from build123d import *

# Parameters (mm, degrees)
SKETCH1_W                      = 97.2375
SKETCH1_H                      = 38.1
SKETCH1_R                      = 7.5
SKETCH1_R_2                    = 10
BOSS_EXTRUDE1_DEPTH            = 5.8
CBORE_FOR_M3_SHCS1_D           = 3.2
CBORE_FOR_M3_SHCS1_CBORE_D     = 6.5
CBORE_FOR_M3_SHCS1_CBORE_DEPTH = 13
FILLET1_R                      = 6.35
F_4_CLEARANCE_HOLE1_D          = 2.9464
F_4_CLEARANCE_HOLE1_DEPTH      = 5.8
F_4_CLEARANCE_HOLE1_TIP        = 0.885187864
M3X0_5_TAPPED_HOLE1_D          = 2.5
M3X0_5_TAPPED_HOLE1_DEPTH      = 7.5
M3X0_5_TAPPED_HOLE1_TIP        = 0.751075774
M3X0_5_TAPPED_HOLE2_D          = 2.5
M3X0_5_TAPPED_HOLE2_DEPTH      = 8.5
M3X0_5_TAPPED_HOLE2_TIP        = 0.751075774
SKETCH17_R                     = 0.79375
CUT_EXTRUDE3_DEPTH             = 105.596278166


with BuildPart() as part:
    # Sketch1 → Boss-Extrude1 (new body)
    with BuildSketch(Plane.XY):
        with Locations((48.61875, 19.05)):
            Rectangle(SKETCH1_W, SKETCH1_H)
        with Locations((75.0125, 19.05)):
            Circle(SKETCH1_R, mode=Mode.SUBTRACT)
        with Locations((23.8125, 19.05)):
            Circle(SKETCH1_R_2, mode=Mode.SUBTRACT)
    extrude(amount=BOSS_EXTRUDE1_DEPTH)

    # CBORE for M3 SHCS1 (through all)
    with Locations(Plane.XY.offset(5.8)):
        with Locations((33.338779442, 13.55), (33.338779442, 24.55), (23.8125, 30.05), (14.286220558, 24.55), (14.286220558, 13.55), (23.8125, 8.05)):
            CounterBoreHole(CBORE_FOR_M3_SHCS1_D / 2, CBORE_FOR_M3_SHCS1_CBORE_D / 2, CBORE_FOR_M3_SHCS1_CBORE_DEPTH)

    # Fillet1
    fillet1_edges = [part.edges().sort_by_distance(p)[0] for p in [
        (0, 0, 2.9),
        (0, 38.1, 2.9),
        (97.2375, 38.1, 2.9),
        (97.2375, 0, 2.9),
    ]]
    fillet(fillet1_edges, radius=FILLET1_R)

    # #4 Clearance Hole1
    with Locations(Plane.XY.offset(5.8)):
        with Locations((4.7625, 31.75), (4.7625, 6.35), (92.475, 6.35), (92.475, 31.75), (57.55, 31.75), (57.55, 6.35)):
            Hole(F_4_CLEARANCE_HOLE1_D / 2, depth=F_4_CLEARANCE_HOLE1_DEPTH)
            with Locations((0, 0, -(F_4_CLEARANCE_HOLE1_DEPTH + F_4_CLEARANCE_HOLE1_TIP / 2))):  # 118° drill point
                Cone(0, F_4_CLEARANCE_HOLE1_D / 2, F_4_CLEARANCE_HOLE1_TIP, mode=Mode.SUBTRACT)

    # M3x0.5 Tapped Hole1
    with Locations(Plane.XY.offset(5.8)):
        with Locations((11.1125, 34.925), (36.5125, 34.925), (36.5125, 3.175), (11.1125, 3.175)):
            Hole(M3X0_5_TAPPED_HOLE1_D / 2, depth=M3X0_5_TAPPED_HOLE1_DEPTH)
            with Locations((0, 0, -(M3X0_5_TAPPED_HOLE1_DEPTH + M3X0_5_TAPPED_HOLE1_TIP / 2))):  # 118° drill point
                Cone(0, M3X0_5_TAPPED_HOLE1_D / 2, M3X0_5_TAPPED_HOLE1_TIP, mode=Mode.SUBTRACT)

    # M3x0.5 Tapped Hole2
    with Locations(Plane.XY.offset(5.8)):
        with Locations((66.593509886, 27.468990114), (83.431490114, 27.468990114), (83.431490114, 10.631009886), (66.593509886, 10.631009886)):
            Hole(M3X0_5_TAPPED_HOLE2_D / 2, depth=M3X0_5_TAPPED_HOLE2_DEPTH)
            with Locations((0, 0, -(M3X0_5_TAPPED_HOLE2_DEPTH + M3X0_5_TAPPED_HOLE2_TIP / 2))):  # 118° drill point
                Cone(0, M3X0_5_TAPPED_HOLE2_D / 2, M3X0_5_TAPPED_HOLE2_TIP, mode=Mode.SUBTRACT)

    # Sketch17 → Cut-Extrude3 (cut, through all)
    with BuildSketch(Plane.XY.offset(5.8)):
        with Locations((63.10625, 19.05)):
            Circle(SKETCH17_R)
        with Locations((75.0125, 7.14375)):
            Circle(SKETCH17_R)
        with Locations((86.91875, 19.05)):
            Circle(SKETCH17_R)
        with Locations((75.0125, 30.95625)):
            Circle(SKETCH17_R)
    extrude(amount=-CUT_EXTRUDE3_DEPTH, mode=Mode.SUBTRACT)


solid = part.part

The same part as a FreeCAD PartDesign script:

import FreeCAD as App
import Part
import Sketcher
from FreeCAD import Vector
Q = App.Units.Quantity


def edges_at(feature, points):
    """Names of the edges that pass closest to the given points."""
    edges = feature.Shape.Edges
    near = lambda p: min(range(len(edges)), key=lambda i: edges[i].distToShape(Part.Vertex(*p))[0])
    return sorted({f"Edge{near(p) + 1}" for p in points})

doc = App.newDocument("Part")
body = doc.addObject("PartDesign::Body", "Body")

sketch1 = body.newObject("Sketcher::SketchObject", "Sketch")
sketch1.AttachmentSupport = (doc.getObject("XY_Plane"), [""])
sketch1.MapMode = "FlatFace"
sketch1.addGeometry([
    Part.LineSegment(Vector(0, 38, 0), Vector(0, 0, 0)),
    Part.LineSegment(Vector(0, 0, 0), Vector(97, 0, 0)),
    Part.LineSegment(Vector(97, 0, 0), Vector(97, 38, 0)),
    Part.LineSegment(Vector(97, 38, 0), Vector(0, 38, 0)),
    Part.Circle(Vector(24, 19, 0), Vector(0, 0, 1), 10),
    Part.Circle(Vector(75, 19, 0), Vector(0, 0, 1), 8),
], False)
sketch1.addConstraint([
    Sketcher.Constraint("Coincident", 0, 2, 1, 1),
    Sketcher.Constraint("Coincident", 1, 2, 2, 1),
    Sketcher.Constraint("Coincident", 2, 2, 3, 1),
    Sketcher.Constraint("Coincident", 3, 2, 0, 1),
    Sketcher.Constraint("Vertical", 0),
    Sketcher.Constraint("Horizontal", 1),
    Sketcher.Constraint("Vertical", 2),
    Sketcher.Constraint("Horizontal", 3),
    Sketcher.Constraint("Coincident", 0, 2, -1, 1),
    Sketcher.Constraint("Horizontal", 4, 3, 5, 3),
    Sketcher.Constraint("Diameter", 4, Q("20 mm")),
    Sketcher.Constraint("Diameter", 5, Q("15 mm")),
    Sketcher.Constraint("DistanceY", 0, 2, 0, 1, Q("38.1 mm")),
    Sketcher.Constraint("DistanceX", 4, 3, 5, 3, Q("51.2 mm")),
    Sketcher.Constraint("DistanceY", -1, 1, 4, 3, Q("19.05 mm")),
    Sketcher.Constraint("DistanceX", 1, 1, 1, 2, Q("97.2375 mm")),
    Sketcher.Constraint("DistanceX", 5, 3, 1, 2, Q("22.225 mm")),
])
pad1 = body.newObject("PartDesign::Pad", "Pad")
pad1.Profile = sketch1
pad1.Length = 5.8

sketch2 = body.newObject("Sketcher::SketchObject", "Sketch001")
sketch2.AttachmentSupport = (doc.getObject("XY_Plane"), [""])
sketch2.MapMode = "FlatFace"
sketch2.AttachmentOffset = App.Placement(Vector(0, 0, 5.8), App.Rotation())
sketch2.addGeometry([
    Part.Circle(Vector(33.3, 13.6, 0), Vector(0, 0, 1), 1.6),
    Part.Circle(Vector(33.3, 24.6, 0), Vector(0, 0, 1), 1.6),
    Part.Circle(Vector(23.8, 30.1, 0), Vector(0, 0, 1), 1.6),
    Part.Circle(Vector(14.3, 24.6, 0), Vector(0, 0, 1), 1.6),
    Part.Circle(Vector(14.3, 13.6, 0), Vector(0, 0, 1), 1.6),
    Part.Circle(Vector(23.8, 8.1, 0), Vector(0, 0, 1), 1.6),
], False)
sketch2.addConstraint([
    Sketcher.Constraint("Equal", 0, 1),
    Sketcher.Constraint("Equal", 1, 2),
    Sketcher.Constraint("Equal", 2, 3),
    Sketcher.Constraint("Equal", 3, 4),
    Sketcher.Constraint("Equal", 4, 5),
    Sketcher.Constraint("Horizontal", 1, 3, 3, 3),
    Sketcher.Constraint("Horizontal", 0, 3, 4, 3),
    Sketcher.Constraint("Vertical", 0, 3, 1, 3),
    Sketcher.Constraint("Vertical", 3, 3, 4, 3),
    Sketcher.Constraint("Vertical", 2, 3, 5, 3),
    Sketcher.Constraint("Diameter", 0, Q("3.2 mm")),
    Sketcher.Constraint("DistanceY", 0, 3, 1, 3, Q("11 mm")),
    Sketcher.Constraint("DistanceY", 5, 3, 2, 3, Q("22 mm")),
    Sketcher.Constraint("DistanceY", 1, 3, 2, 3, Q("5.5 mm")),
    Sketcher.Constraint("DistanceY", -1, 1, 0, 3, Q("13.55 mm")),
    Sketcher.Constraint("DistanceX", -1, 1, 2, 3, Q("23.8125 mm")),
    Sketcher.Constraint("DistanceX", -1, 1, 0, 3, Q("33.338779 mm")),
    Sketcher.Constraint("DistanceX", -1, 1, 3, 3, Q("14.286221 mm")),
])
doc.recompute()
hole = body.newObject("PartDesign::Hole", "Hole")
hole.Profile = sketch2
hole.ThreadType = "None"
hole.Diameter = 3.2
hole.DepthType = "ThroughAll"
hole.HoleCutType = "Counterbore"
hole.HoleCutDiameter = 6.5
hole.HoleCutDepth = 13
doc.recompute()

fillet = body.newObject("PartDesign::Fillet", "Fillet")
fillet.Base = (hole, edges_at(hole, [
    (0, 0, 2.9),
    (0, 38.1, 2.9),
    (97.237, 38.1, 2.9),
    (97.237, 0, 2.9),
]))
fillet.Radius = 6.35

sketch3 = body.newObject("Sketcher::SketchObject", "Sketch002")
sketch3.AttachmentSupport = (doc.getObject("XY_Plane"), [""])
sketch3.MapMode = "FlatFace"
sketch3.AttachmentOffset = App.Placement(Vector(0, 0, 5.8), App.Rotation())
sketch3.addGeometry([
    Part.Circle(Vector(4.8, 31.8, 0), Vector(0, 0, 1), 1.5),
    Part.Circle(Vector(4.8, 6.3, 0), Vector(0, 0, 1), 1.5),
    Part.Circle(Vector(92.5, 6.3, 0), Vector(0, 0, 1), 1.5),
    Part.Circle(Vector(92.5, 31.8, 0), Vector(0, 0, 1), 1.5),
    Part.Circle(Vector(57.5, 31.8, 0), Vector(0, 0, 1), 1.5),
    Part.Circle(Vector(57.5, 6.3, 0), Vector(0, 0, 1), 1.5),
], False)
sketch3.addConstraint([
    Sketcher.Constraint("Equal", 0, 1),
    Sketcher.Constraint("Equal", 1, 2),
    Sketcher.Constraint("Equal", 2, 3),
    Sketcher.Constraint("Equal", 3, 4),
    Sketcher.Constraint("Equal", 4, 5),
    Sketcher.Constraint("Horizontal", 1, 3, 2, 3),
    Sketcher.Constraint("Horizontal", 0, 3, 3, 3),
    Sketcher.Constraint("Horizontal", 3, 3, 4, 3),
    Sketcher.Constraint("Horizontal", 2, 3, 5, 3),
    Sketcher.Constraint("Vertical", 0, 3, 1, 3),
    Sketcher.Constraint("Vertical", 2, 3, 3, 3),
    Sketcher.Constraint("Vertical", 4, 3, 5, 3),
    Sketcher.Constraint("Diameter", 0, Q("2.9464 mm")),
    Sketcher.Constraint("DistanceY", 1, 3, 0, 3, Q("25.4 mm")),
    Sketcher.Constraint("DistanceY", -1, 1, 0, 3, Q("31.75 mm")),
    Sketcher.Constraint("DistanceX", -1, 1, 4, 3, Q("57.55 mm")),
    Sketcher.Constraint("DistanceX", -1, 1, 2, 3, Q("92.475 mm")),
    Sketcher.Constraint("DistanceX", -1, 1, 0, 3, Q("4.7625 mm")),
])
doc.recompute()
hole2 = body.newObject("PartDesign::Hole", "Hole001")
hole2.Profile = sketch3
hole2.ThreadType = "None"
hole2.Diameter = 2.9464
hole2.DepthType = "Dimension"
hole2.Depth = 5.8
hole2.DrillPoint = "Angled"
hole2.DrillPointAngle = 118

sketch4 = body.newObject("Sketcher::SketchObject", "Sketch003")
sketch4.AttachmentSupport = (doc.getObject("XY_Plane"), [""])
sketch4.MapMode = "FlatFace"
sketch4.AttachmentOffset = App.Placement(Vector(0, 0, 5.8), App.Rotation())
sketch4.addGeometry([
    Part.Circle(Vector(11.1, 34.9, 0), Vector(0, 0, 1), 1.2),
    Part.Circle(Vector(36.5, 34.9, 0), Vector(0, 0, 1), 1.2),
    Part.Circle(Vector(36.5, 3.2, 0), Vector(0, 0, 1), 1.2),
    Part.Circle(Vector(11.1, 3.2, 0), Vector(0, 0, 1), 1.2),
], False)
sketch4.addConstraint([
    Sketcher.Constraint("Equal", 0, 1),
    Sketcher.Constraint("Equal", 1, 2),
    Sketcher.Constraint("Equal", 2, 3),
    Sketcher.Constraint("Horizontal", 0, 3, 1, 3),
    Sketcher.Constraint("Horizontal", 2, 3, 3, 3),
    Sketcher.Constraint("Vertical", 1, 3, 2, 3),
    Sketcher.Constraint("Vertical", 0, 3, 3, 3),
    Sketcher.Constraint("Diameter", 0, Q("2.5 mm")),
    Sketcher.Constraint("DistanceX", 0, 3, 1, 3, Q("25.4 mm")),
    Sketcher.Constraint("DistanceY", 2, 3, 1, 3, Q("31.75 mm")),
    Sketcher.Constraint("DistanceY", -1, 1, 0, 3, Q("34.925 mm")),
    Sketcher.Constraint("DistanceX", -1, 1, 0, 3, Q("11.1125 mm")),
])
doc.recompute()
hole3 = body.newObject("PartDesign::Hole", "Hole002")
hole3.Profile = sketch4
hole3.ThreadType = "None"
hole3.Diameter = 2.5
hole3.DepthType = "Dimension"
hole3.Depth = 7.5
hole3.DrillPoint = "Angled"
hole3.DrillPointAngle = 118

sketch5 = body.newObject("Sketcher::SketchObject", "Sketch004")
sketch5.AttachmentSupport = (doc.getObject("XY_Plane"), [""])
sketch5.MapMode = "FlatFace"
sketch5.AttachmentOffset = App.Placement(Vector(0, 0, 5.8), App.Rotation())
sketch5.addGeometry([
    Part.Circle(Vector(66.6, 27.5, 0), Vector(0, 0, 1), 1.2),
    Part.Circle(Vector(83.4, 27.5, 0), Vector(0, 0, 1), 1.2),
    Part.Circle(Vector(83.4, 10.6, 0), Vector(0, 0, 1), 1.2),
    Part.Circle(Vector(66.6, 10.6, 0), Vector(0, 0, 1), 1.2),
], False)
sketch5.addConstraint([
    Sketcher.Constraint("Equal", 0, 1),
    Sketcher.Constraint("Equal", 1, 2),
    Sketcher.Constraint("Equal", 2, 3),
    Sketcher.Constraint("Horizontal", 0, 3, 1, 3),
    Sketcher.Constraint("Horizontal", 2, 3, 3, 3),
    Sketcher.Constraint("Vertical", 1, 3, 2, 3),
    Sketcher.Constraint("Vertical", 0, 3, 3, 3),
    Sketcher.Constraint("Diameter", 0, Q("2.5 mm")),
    Sketcher.Constraint("DistanceX", -1, 1, 0, 3, Q("66.59351 mm")),
    Sketcher.Constraint("DistanceY", -1, 1, 0, 3, Q("27.46899 mm")),
    Sketcher.Constraint("DistanceX", -1, 1, 1, 3, Q("83.43149 mm")),
    Sketcher.Constraint("DistanceY", -1, 1, 2, 3, Q("10.63101 mm")),
])
doc.recompute()
hole4 = body.newObject("PartDesign::Hole", "Hole003")
hole4.Profile = sketch5
hole4.ThreadType = "None"
hole4.Diameter = 2.5
hole4.DepthType = "Dimension"
hole4.Depth = 8.5
hole4.DrillPoint = "Angled"
hole4.DrillPointAngle = 118

sketch6 = body.newObject("Sketcher::SketchObject", "Sketch005")
sketch6.AttachmentSupport = (doc.getObject("XY_Plane"), [""])
sketch6.MapMode = "FlatFace"
sketch6.AttachmentOffset = App.Placement(Vector(0, 0, 5.8), App.Rotation())
sketch6.addGeometry([
    Part.Circle(Vector(63.1, 19.1, 0), Vector(0, 0, 1), 0.8),
    Part.Circle(Vector(75, 7.1, 0), Vector(0, 0, 1), 0.8),
    Part.Circle(Vector(86.9, 19.1, 0), Vector(0, 0, 1), 0.8),
    Part.Circle(Vector(75, 31, 0), Vector(0, 0, 1), 0.8),
], False)
sketch6.addConstraint([
    Sketcher.Constraint("Equal", 0, 1),
    Sketcher.Constraint("Equal", 1, 2),
    Sketcher.Constraint("Equal", 2, 3),
    Sketcher.Constraint("Horizontal", 0, 3, 2, 3),
    Sketcher.Constraint("Vertical", 1, 3, 3, 3),
    Sketcher.Constraint("Diameter", 0, Q("1.5875 mm")),
    Sketcher.Constraint("DistanceY", -1, 1, 0, 3, Q("19.05 mm")),
    Sketcher.Constraint("DistanceX", -1, 1, 1, 3, Q("75.0125 mm")),
    Sketcher.Constraint("DistanceX", 0, 3, 2, 3, Q("23.8125 mm")),
    Sketcher.Constraint("DistanceY", 1, 3, 3, 3, Q("23.8125 mm")),
    Sketcher.Constraint("DistanceX", -1, 1, 0, 3, Q("63.10625 mm")),
    Sketcher.Constraint("DistanceY", -1, 1, 1, 3, Q("7.14375 mm")),
])
pocket1 = body.newObject("PartDesign::Pocket", "Pocket")
pocket1.Profile = sketch6
pocket1.Type = "ThroughAll"

doc.recompute()
